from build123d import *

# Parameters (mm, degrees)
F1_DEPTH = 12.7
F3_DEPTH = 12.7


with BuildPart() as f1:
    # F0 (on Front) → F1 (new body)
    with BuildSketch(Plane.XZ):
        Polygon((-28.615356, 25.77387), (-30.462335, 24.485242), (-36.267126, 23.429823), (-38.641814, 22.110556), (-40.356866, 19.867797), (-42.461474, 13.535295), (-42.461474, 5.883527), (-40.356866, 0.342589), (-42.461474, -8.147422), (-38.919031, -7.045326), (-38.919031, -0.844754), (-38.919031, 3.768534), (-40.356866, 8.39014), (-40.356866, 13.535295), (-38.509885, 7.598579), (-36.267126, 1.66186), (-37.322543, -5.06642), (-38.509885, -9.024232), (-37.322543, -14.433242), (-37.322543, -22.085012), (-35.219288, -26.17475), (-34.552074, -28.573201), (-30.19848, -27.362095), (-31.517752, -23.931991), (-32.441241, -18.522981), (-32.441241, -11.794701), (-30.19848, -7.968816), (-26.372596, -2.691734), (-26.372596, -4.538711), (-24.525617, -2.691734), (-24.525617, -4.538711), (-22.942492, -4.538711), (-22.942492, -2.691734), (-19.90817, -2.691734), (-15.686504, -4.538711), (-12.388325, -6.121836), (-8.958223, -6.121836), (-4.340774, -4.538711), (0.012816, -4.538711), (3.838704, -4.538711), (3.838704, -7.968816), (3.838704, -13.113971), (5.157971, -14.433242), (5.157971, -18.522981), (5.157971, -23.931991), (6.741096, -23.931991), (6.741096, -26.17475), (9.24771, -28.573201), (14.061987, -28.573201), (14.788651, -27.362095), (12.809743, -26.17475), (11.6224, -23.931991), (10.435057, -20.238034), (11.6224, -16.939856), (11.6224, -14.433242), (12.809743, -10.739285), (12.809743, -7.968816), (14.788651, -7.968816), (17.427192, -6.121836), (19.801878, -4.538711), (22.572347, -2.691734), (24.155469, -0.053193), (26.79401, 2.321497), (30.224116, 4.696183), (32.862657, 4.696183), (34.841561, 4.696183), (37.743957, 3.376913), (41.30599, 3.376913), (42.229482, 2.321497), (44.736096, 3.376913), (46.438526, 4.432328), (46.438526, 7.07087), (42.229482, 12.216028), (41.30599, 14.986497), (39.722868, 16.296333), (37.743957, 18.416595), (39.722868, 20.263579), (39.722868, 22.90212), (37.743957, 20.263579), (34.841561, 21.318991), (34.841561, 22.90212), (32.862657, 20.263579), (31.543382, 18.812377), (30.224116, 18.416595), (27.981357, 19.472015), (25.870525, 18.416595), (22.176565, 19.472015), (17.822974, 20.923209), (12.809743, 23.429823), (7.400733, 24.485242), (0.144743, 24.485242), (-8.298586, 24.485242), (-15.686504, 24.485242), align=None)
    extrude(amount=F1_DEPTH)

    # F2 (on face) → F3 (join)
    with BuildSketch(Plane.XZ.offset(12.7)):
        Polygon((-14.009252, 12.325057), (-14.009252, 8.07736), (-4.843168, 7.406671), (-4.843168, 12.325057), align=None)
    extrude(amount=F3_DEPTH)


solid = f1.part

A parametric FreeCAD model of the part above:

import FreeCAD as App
import Part
import Sketcher

doc = App.newDocument("Part")
params = doc.addObject("Spreadsheet::Sheet", "Params")
for row, (alias, value) in enumerate([
    ("pad1_length", "0.5 in"),
    ("pad2_length", "0.5 in"),
], start=1):
    params.set(f"A{row}", alias)
    params.set(f"B{row}", "=" + value)
    params.setAlias(f"B{row}", alias)

body = doc.addObject("PartDesign::Body", "Body")

# Sketch on XZ plane
sketch1 = body.newObject("Sketcher::SketchObject", "Sketch")
sketch1.AttachmentSupport = (doc.getObject("XZ_Plane"), [""])
sketch1.MapMode = "FlatFace"
sketch1.addGeometry(Part.LineSegment(App.Vector(-28.615356, 25.77387, 0), App.Vector(-30.462335, 24.485242, 0)), False)
sketch1.addGeometry(Part.LineSegment(App.Vector(-30.462335, 24.485242, 0), App.Vector(-36.267126, 23.429823, 0)), False)
sketch1.addGeometry(Part.LineSegment(App.Vector(-36.267126, 23.429823, 0), App.Vector(-38.641814, 22.110556, 0)), False)
sketch1.addGeometry(Part.LineSegment(App.Vector(-38.641814, 22.110556, 0), App.Vector(-40.356866, 19.867797, 0)), False)
sketch1.addGeometry(Part.LineSegment(App.Vector(-40.356866, 19.867797, 0), App.Vector(-42.461474, 13.535295, 0)), False)
sketch1.addGeometry(Part.LineSegment(App.Vector(-42.461474, 13.535295, 0), App.Vector(-42.461474, 5.883527, 0)), False)
sketch1.addGeometry(Part.LineSegment(App.Vector(-42.461474, 5.883527, 0), App.Vector(-40.356866, 0.342589, 0)), False)
sketch1.addGeometry(Part.LineSegment(App.Vector(-40.356866, 0.342589, 0), App.Vector(-42.461474, -8.147422, 0)), False)
sketch1.addGeometry(Part.LineSegment(App.Vector(-42.461474, -8.147422, 0), App.Vector(-38.919031, -7.045326, 0)), False)
sketch1.addGeometry(Part.LineSegment(App.Vector(-38.919031, -7.045326, 0), App.Vector(-38.919031, 3.768534, 0)), False)
sketch1.addGeometry(Part.LineSegment(App.Vector(-38.919031, 3.768534, 0), App.Vector(-40.356866, 8.39014, 0)), False)
sketch1.addGeometry(Part.LineSegment(App.Vector(-40.356866, 8.39014, 0), App.Vector(-40.356866, 13.535295, 0)), False)
sketch1.addGeometry(Part.LineSegment(App.Vector(-40.356866, 13.535295, 0), App.Vector(-38.509885, 7.598579, 0)), False)
sketch1.addGeometry(Part.LineSegment(App.Vector(-38.509885, 7.598579, 0), App.Vector(-36.267126, 1.66186, 0)), False)
sketch1.addGeometry(Part.LineSegment(App.Vector(-36.267126, 1.66186, 0), App.Vector(-37.322543, -5.06642, 0)), False)
sketch1.addGeometry(Part.LineSegment(App.Vector(-37.322543, -5.06642, 0), App.Vector(-38.509885, -9.024232, 0)), False)
sketch1.addGeometry(Part.LineSegment(App.Vector(-38.509885, -9.024232, 0), App.Vector(-37.322543, -14.433242, 0)), False)
sketch1.addGeometry(Part.LineSegment(App.Vector(-37.322543, -14.433242, 0), App.Vector(-37.322543, -22.085012, 0)), False)
sketch1.addGeometry(Part.LineSegment(App.Vector(-37.322543, -22.085012, 0), App.Vector(-35.219288, -26.17475, 0)), False)
sketch1.addGeometry(Part.LineSegment(App.Vector(-35.219288, -26.17475, 0), App.Vector(-34.552074, -28.573201, 0)), False)
sketch1.addGeometry(Part.LineSegment(App.Vector(-34.552074, -28.573201, 0), App.Vector(-30.19848, -27.362095, 0)), False)
sketch1.addGeometry(Part.LineSegment(App.Vector(-30.19848, -27.362095, 0), App.Vector(-31.517752, -23.931991, 0)), False)
sketch1.addGeometry(Part.LineSegment(App.Vector(-31.517752, -23.931991, 0), App.Vector(-32.441241, -18.522981, 0)), False)
sketch1.addGeometry(Part.LineSegment(App.Vector(-32.441241, -18.522981, 0), App.Vector(-32.441241, -11.794701, 0)), False)
sketch1.addGeometry(Part.LineSegment(App.Vector(-32.441241, -11.794701, 0), App.Vector(-30.19848, -7.968816, 0)), False)
sketch1.addGeometry(Part.LineSegment(App.Vector(-30.19848, -7.968816, 0), App.Vector(-26.372596, -2.691734, 0)), False)
sketch1.addGeometry(Part.LineSegment(App.Vector(-26.372596, -2.691734, 0), App.Vector(-26.372596, -4.538711, 0)), False)
sketch1.addGeometry(Part.LineSegment(App.Vector(-26.372596, -4.538711, 0), App.Vector(-24.525617, -2.691734, 0)), False)
sketch1.addGeometry(Part.LineSegment(App.Vector(-24.525617, -2.691734, 0), App.Vector(-24.525617, -4.538711, 0)), False)
sketch1.addGeometry(Part.LineSegment(App.Vector(-24.525617, -4.538711, 0), App.Vector(-22.942492, -4.538711, 0)), False)
sketch1.addGeometry(Part.LineSegment(App.Vector(-22.942492, -4.538711, 0), App.Vector(-22.942492, -2.691734, 0)), False)
sketch1.addGeometry(Part.LineSegment(App.Vector(-22.942492, -2.691734, 0), App.Vector(-19.90817, -2.691734, 0)), False)
sketch1.addGeometry(Part.LineSegment(App.Vector(-19.90817, -2.691734, 0), App.Vector(-15.686504, -4.538711, 0)), False)
sketch1.addGeometry(Part.LineSegment(App.Vector(-15.686504, -4.538711, 0), App.Vector(-12.388325, -6.121836, 0)), False)
sketch1.addGeometry(Part.LineSegment(App.Vector(-12.388325, -6.121836, 0), App.Vector(-8.958223, -6.121836, 0)), False)
sketch1.addGeometry(Part.LineSegment(App.Vector(-8.958223, -6.121836, 0), App.Vector(-4.340774, -4.538711, 0)), False)
sketch1.addGeometry(Part.LineSegment(App.Vector(-4.340774, -4.538711, 0), App.Vector(3.838704, -4.538711, 0)), False)
sketch1.addGeometry(Part.LineSegment(App.Vector(3.838704, -4.538711, 0), App.Vector(3.838704, -13.113971, 0)), False)
sketch1.addGeometry(Part.LineSegment(App.Vector(3.838704, -13.113971, 0), App.Vector(5.157971, -14.433242, 0)), False)
sketch1.addGeometry(Part.LineSegment(App.Vector(5.157971, -14.433242, 0), App.Vector(5.157971, -23.931991, 0)), False)
sketch1.addGeometry(Part.LineSegment(App.Vector(5.157971, -23.931991, 0), App.Vector(6.741096, -23.931991, 0)), False)
sketch1.addGeometry(Part.LineSegment(App.Vector(6.741096, -23.931991, 0), App.Vector(6.741096, -26.17475, 0)), False)
sketch1.addGeometry(Part.LineSegment(App.Vector(6.741096, -26.17475, 0), App.Vector(9.24771, -28.573201, 0)), False)
sketch1.addGeometry(Part.LineSegment(App.Vector(9.24771, -28.573201, 0), App.Vector(14.061987, -28.573201, 0)), False)
sketch1.addGeometry(Part.LineSegment(App.Vector(14.061987, -28.573201, 0), App.Vector(14.788651, -27.362095, 0)), False)
sketch1.addGeometry(Part.LineSegment(App.Vector(14.788651, -27.362095, 0), App.Vector(12.809743, -26.17475, 0)), False)
sketch1.addGeometry(Part.LineSegment(App.Vector(12.809743, -26.17475, 0), App.Vector(11.6224, -23.931991, 0)), False)
sketch1.addGeometry(Part.LineSegment(App.Vector(11.6224, -23.931991, 0), App.Vector(10.435057, -20.238034, 0)), False)
sketch1.addGeometry(Part.LineSegment(App.Vector(10.435057, -20.238034, 0), App.Vector(11.6224, -16.939856, 0)), False)
sketch1.addGeometry(Part.LineSegment(App.Vector(11.6224, -16.939856, 0), App.Vector(11.6224, -14.433242, 0)), False)
sketch1.addGeometry(Part.LineSegment(App.Vector(11.6224, -14.433242, 0), App.Vector(12.809743, -10.739285, 0)), False)
sketch1.addGeometry(Part.LineSegment(App.Vector(12.809743, -10.739285, 0), App.Vector(12.809743, -7.968816, 0)), False)
sketch1.addGeometry(Part.LineSegment(App.Vector(12.809743, -7.968816, 0), App.Vector(14.788651, -7.968816, 0)), False)
sketch1.addGeometry(Part.LineSegment(App.Vector(14.788651, -7.968816, 0), App.Vector(17.427192, -6.121836, 0)), False)
sketch1.addGeometry(Part.LineSegment(App.Vector(17.427192, -6.121836, 0), App.Vector(19.801878, -4.538711, 0)), False)
sketch1.addGeometry(Part.LineSegment(App.Vector(19.801878, -4.538711, 0), App.Vector(22.572347, -2.691734, 0)), False)
sketch1.addGeometry(Part.LineSegment(App.Vector(22.572347, -2.691734, 0), App.Vector(24.155469, -0.053193, 0)), False)
sketch1.addGeometry(Part.LineSegment(App.Vector(24.155469, -0.053193, 0), App.Vector(26.79401, 2.321497, 0)), False)
sketch1.addGeometry(Part.LineSegment(App.Vector(26.79401, 2.321497, 0), App.Vector(30.224116, 4.696183, 0)), False)
sketch1.addGeometry(Part.LineSegment(App.Vector(30.224116, 4.696183, 0), App.Vector(34.841561, 4.696183, 0)), False)
sketch1.addGeometry(Part.LineSegment(App.Vector(34.841561, 4.696183, 0), App.Vector(37.743957, 3.376913, 0)), False)
sketch1.addGeometry(Part.LineSegment(App.Vector(37.743957, 3.376913, 0), App.Vector(41.30599, 3.376913, 0)), False)
sketch1.addGeometry(Part.LineSegment(App.Vector(41.30599, 3.376913, 0), App.Vector(42.229482, 2.321497, 0)), False)
sketch1.addGeometry(Part.LineSegment(App.Vector(42.229482, 2.321497, 0), App.Vector(44.736096, 3.376913, 0)), False)
sketch1.addGeometry(Part.LineSegment(App.Vector(44.736096, 3.376913, 0), App.Vector(46.438526, 4.432328, 0)), False)
sketch1.addGeometry(Part.LineSegment(App.Vector(46.438526, 4.432328, 0), App.Vector(46.438526, 7.07087, 0)), False)
sketch1.addGeometry(Part.LineSegment(App.Vector(46.438526, 7.07087, 0), App.Vector(42.229482, 12.216028, 0)), False)
sketch1.addGeometry(Part.LineSegment(App.Vector(42.229482, 12.216028, 0), App.Vector(41.30599, 14.986497, 0)), False)
sketch1.addGeometry(Part.LineSegment(App.Vector(41.30599, 14.986497, 0), App.Vector(39.722868, 16.296333, 0)), False)
sketch1.addGeometry(Part.LineSegment(App.Vector(39.722868, 16.296333, 0), App.Vector(37.743957, 18.416595, 0)), False)
sketch1.addGeometry(Part.LineSegment(App.Vector(37.743957, 18.416595, 0), App.Vector(39.722868, 20.263579, 0)), False)
sketch1.addGeometry(Part.LineSegment(App.Vector(39.722868, 20.263579, 0), App.Vector(39.722868, 22.90212, 0)), False)
sketch1.addGeometry(Part.LineSegment(App.Vector(39.722868, 22.90212, 0), App.Vector(37.743957, 20.263579, 0)), False)
sketch1.addGeometry(Part.LineSegment(App.Vector(37.743957, 20.263579, 0), App.Vector(34.841561, 21.318991, 0)), False)
sketch1.addGeometry(Part.LineSegment(App.Vector(34.841561, 21.318991, 0), App.Vector(34.841561, 22.90212, 0)), False)
sketch1.addGeometry(Part.LineSegment(App.Vector(34.841561, 22.90212, 0), App.Vector(32.862657, 20.263579, 0)), False)
sketch1.addGeometry(Part.LineSegment(App.Vector(32.862657, 20.263579, 0), App.Vector(31.543382, 18.812377, 0)), False)
sketch1.addGeometry(Part.LineSegment(App.Vector(31.543382, 18.812377, 0), App.Vector(30.224116, 18.416595, 0)), False)
sketch1.addGeometry(Part.LineSegment(App.Vector(30.224116, 18.416595, 0), App.Vector(27.981357, 19.472015, 0)), False)
sketch1.addGeometry(Part.LineSegment(App.Vector(27.981357, 19.472015, 0), App.Vector(25.870525, 18.416595, 0)), False)
sketch1.addGeometry(Part.LineSegment(App.Vector(25.870525, 18.416595, 0), App.Vector(22.176565, 19.472015, 0)), False)
sketch1.addGeometry(Part.LineSegment(App.Vector(22.176565, 19.472015, 0), App.Vector(17.822974, 20.923209, 0)), False)
sketch1.addGeometry(Part.LineSegment(App.Vector(17.822974, 20.923209, 0), App.Vector(12.809743, 23.429823, 0)), False)
sketch1.addGeometry(Part.LineSegment(App.Vector(12.809743, 23.429823, 0), App.Vector(7.400733, 24.485242, 0)), False)
sketch1.addGeometry(Part.LineSegment(App.Vector(7.400733, 24.485242, 0), App.Vector(-15.686504, 24.485242, 0)), False)
sketch1.addGeometry(Part.LineSegment(App.Vector(-15.686504, 24.485242, 0), App.Vector(-28.615356, 25.77387, 0)), False)
sketch1.addConstraint(Sketcher.Constraint("Coincident", 0, 2, 1, 1))
sketch1.addConstraint(Sketcher.Constraint("Coincident", 1, 2, 2, 1))
sketch1.addConstraint(Sketcher.Constraint("Coincident", 2, 2, 3, 1))
sketch1.addConstraint(Sketcher.Constraint("Coincident", 3, 2, 4, 1))
sketch1.addConstraint(Sketcher.Constraint("Coincident", 4, 2, 5, 1))
sketch1.addConstraint(Sketcher.Constraint("Coincident", 5, 2, 6, 1))
sketch1.addConstraint(Sketcher.Constraint("Coincident", 6, 2, 7, 1))
sketch1.addConstraint(Sketcher.Constraint("Coincident", 7, 2, 8, 1))
sketch1.addConstraint(Sketcher.Constraint("Coincident", 8, 2, 9, 1))
sketch1.addConstraint(Sketcher.Constraint("Coincident", 9, 2, 10, 1))
sketch1.addConstraint(Sketcher.Constraint("Coincident", 10, 2, 11, 1))
sketch1.addConstraint(Sketcher.Constraint("Coincident", 11, 2, 12, 1))
sketch1.addConstraint(Sketcher.Constraint("Coincident", 12, 2, 13, 1))
sketch1.addConstraint(Sketcher.Constraint("Coincident", 13, 2, 14, 1))
sketch1.addConstraint(Sketcher.Constraint("Coincident", 14, 2, 15, 1))
sketch1.addConstraint(Sketcher.Constraint("Coincident", 15, 2, 16, 1))
sketch1.addConstraint(Sketcher.Constraint("Coincident", 16, 2, 17, 1))
sketch1.addConstraint(Sketcher.Constraint("Coincident", 17, 2, 18, 1))
sketch1.addConstraint(Sketcher.Constraint("Coincident", 18, 2, 19, 1))
sketch1.addConstraint(Sketcher.Constraint("Coincident", 19, 2, 20, 1))
sketch1.addConstraint(Sketcher.Constraint("Coincident", 20, 2, 21, 1))
sketch1.addConstraint(Sketcher.Constraint("Coincident", 21, 2, 22, 1))
sketch1.addConstraint(Sketcher.Constraint("Coincident", 22, 2, 23, 1))
sketch1.addConstraint(Sketcher.Constraint("Coincident", 23, 2, 24, 1))
sketch1.addConstraint(Sketcher.Constraint("Coincident", 24, 2, 25, 1))
sketch1.addConstraint(Sketcher.Constraint("Coincident", 25, 2, 26, 1))
sketch1.addConstraint(Sketcher.Constraint("Coincident", 26, 2, 27, 1))
sketch1.addConstraint(Sketcher.Constraint("Coincident", 27, 2, 28, 1))
sketch1.addConstraint(Sketcher.Constraint("Coincident", 28, 2, 29, 1))
sketch1.addConstraint(Sketcher.Constraint("Coincident", 29, 2, 30, 1))
sketch1.addConstraint(Sketcher.Constraint("Coincident", 30, 2, 31, 1))
sketch1.addConstraint(Sketcher.Constraint("Coincident", 31, 2, 32, 1))
sketch1.addConstraint(Sketcher.Constraint("Coincident", 32, 2, 33, 1))
sketch1.addConstraint(Sketcher.Constraint("Coincident", 33, 2, 34, 1))
sketch1.addConstraint(Sketcher.Constraint("Coincident", 34, 2, 35, 1))
sketch1.addConstraint(Sketcher.Constraint("Coincident", 35, 2, 36, 1))
sketch1.addConstraint(Sketcher.Constraint("Coincident", 36, 2, 37, 1))
sketch1.addConstraint(Sketcher.Constraint("Coincident", 37, 2, 38, 1))
sketch1.addConstraint(Sketcher.Constraint("Coincident", 38, 2, 39, 1))
sketch1.addConstraint(Sketcher.Constraint("Coincident", 39, 2, 40, 1))
sketch1.addConstraint(Sketcher.Constraint("Coincident", 40, 2, 41, 1))
sketch1.addConstraint(Sketcher.Constraint("Coincident", 41, 2, 42, 1))
sketch1.addConstraint(Sketcher.Constraint("Coincident", 42, 2, 43, 1))
sketch1.addConstraint(Sketcher.Constraint("Coincident", 43, 2, 44, 1))
sketch1.addConstraint(Sketcher.Constraint("Coincident", 44, 2, 45, 1))
sketch1.addConstraint(Sketcher.Constraint("Coincident", 45, 2, 46, 1))
sketch1.addConstraint(Sketcher.Constraint("Coincident", 46, 2, 47, 1))
sketch1.addConstraint(Sketcher.Constraint("Coincident", 47, 2, 48, 1))
sketch1.addConstraint(Sketcher.Constraint("Coincident", 48, 2, 49, 1))
sketch1.addConstraint(Sketcher.Constraint("Coincident", 49, 2, 50, 1))
sketch1.addConstraint(Sketcher.Constraint("Coincident", 50, 2, 51, 1))
sketch1.addConstraint(Sketcher.Constraint("Coincident", 51, 2, 52, 1))
sketch1.addConstraint(Sketcher.Constraint("Coincident", 52, 2, 53, 1))
sketch1.addConstraint(Sketcher.Constraint("Coincident", 53, 2, 54, 1))
sketch1.addConstraint(Sketcher.Constraint("Coincident", 54, 2, 55, 1))
sketch1.addConstraint(Sketcher.Constraint("Coincident", 55, 2, 56, 1))
sketch1.addConstraint(Sketcher.Constraint("Coincident", 56, 2, 57, 1))
sketch1.addConstraint(Sketcher.Constraint("Coincident", 57, 2, 58, 1))
sketch1.addConstraint(Sketcher.Constraint("Coincident", 58, 2, 59, 1))
sketch1.addConstraint(Sketcher.Constraint("Coincident", 59, 2, 60, 1))
sketch1.addConstraint(Sketcher.Constraint("Coincident", 60, 2, 61, 1))
sketch1.addConstraint(Sketcher.Constraint("Coincident", 61, 2, 62, 1))
sketch1.addConstraint(Sketcher.Constraint("Coincident", 62, 2, 63, 1))
sketch1.addConstraint(Sketcher.Constraint("Coincident", 63, 2, 64, 1))
sketch1.addConstraint(Sketcher.Constraint("Coincident", 64, 2, 65, 1))
sketch1.addConstraint(Sketcher.Constraint("Coincident", 65, 2, 66, 1))
sketch1.addConstraint(Sketcher.Constraint("Coincident", 66, 2, 67, 1))
sketch1.addConstraint(Sketcher.Constraint("Coincident", 67, 2, 68, 1))
sketch1.addConstraint(Sketcher.Constraint("Coincident", 68, 2, 69, 1))
sketch1.addConstraint(Sketcher.Constraint("Coincident", 69, 2, 70, 1))
sketch1.addConstraint(Sketcher.Constraint("Coincident", 70, 2, 71, 1))
sketch1.addConstraint(Sketcher.Constraint("Coincident", 71, 2, 72, 1))
sketch1.addConstraint(Sketcher.Constraint("Coincident", 72, 2, 73, 1))
sketch1.addConstraint(Sketcher.Constraint("Coincident", 73, 2, 74, 1))
sketch1.addConstraint(Sketcher.Constraint("Coincident", 74, 2, 75, 1))
sketch1.addConstraint(Sketcher.Constraint("Coincident", 75, 2, 76, 1))
sketch1.addConstraint(Sketcher.Constraint("Coincident", 76, 2, 77, 1))
sketch1.addConstraint(Sketcher.Constraint("Coincident", 77, 2, 78, 1))
sketch1.addConstraint(Sketcher.Constraint("Coincident", 78, 2, 79, 1))
sketch1.addConstraint(Sketcher.Constraint("Coincident", 79, 2, 80, 1))
sketch1.addConstraint(Sketcher.Constraint("Coincident", 80, 2, 81, 1))
sketch1.addConstraint(Sketcher.Constraint("Coincident", 81, 2, 82, 1))
sketch1.addConstraint(Sketcher.Constraint("Coincident", 82, 2, 83, 1))
sketch1.addConstraint(Sketcher.Constraint("Coincident", 83, 2, 84, 1))
sketch1.addConstraint(Sketcher.Constraint("Coincident", 84, 2, 85, 1))
sketch1.addConstraint(Sketcher.Constraint("Coincident", 85, 2, 0, 1))
sketch1.addConstraint(Sketcher.Constraint("Vertical", 5))
sketch1.addConstraint(Sketcher.Constraint("Vertical", 9))
sketch1.addConstraint(Sketcher.Constraint("Vertical", 11))
sketch1.addConstraint(Sketcher.Constraint("Vertical", 17))
sketch1.addConstraint(Sketcher.Constraint("Vertical", 23))
sketch1.addConstraint(Sketcher.Constraint("Vertical", 26))
sketch1.addConstraint(Sketcher.Constraint("Vertical", 28))
sketch1.addConstraint(Sketcher.Constraint("Horizontal", 29))
sketch1.addConstraint(Sketcher.Constraint("Vertical", 30))
sketch1.addConstraint(Sketcher.Constraint("Horizontal", 31))
sketch1.addConstraint(Sketcher.Constraint("Horizontal", 34))
sketch1.addConstraint(Sketcher.Constraint("Horizontal", 36))
sketch1.addConstraint(Sketcher.Constraint("Vertical", 37))
sketch1.addConstraint(Sketcher.Constraint("Vertical", 39))
sketch1.addConstraint(Sketcher.Constraint("Horizontal", 40))
sketch1.addConstraint(Sketcher.Constraint("Vertical", 41))
sketch1.addConstraint(Sketcher.Constraint("Horizontal", 43))
sketch1.addConstraint(Sketcher.Constraint("Vertical", 49))
sketch1.addConstraint(Sketcher.Constraint("Vertical", 51))
sketch1.addConstraint(Sketcher.Constraint("Horizontal", 52))
sketch1.addConstraint(Sketcher.Constraint("Horizontal", 59))
sketch1.addConstraint(Sketcher.Constraint("Horizontal", 61))
sketch1.addConstraint(Sketcher.Constraint("Vertical", 65))
sketch1.addConstraint(Sketcher.Constraint("Vertical", 71))
sketch1.addConstraint(Sketcher.Constraint("Vertical", 74))
sketch1.addConstraint(Sketcher.Constraint("Horizontal", 84))
sketch1.addConstraint(Sketcher.Constraint("Perpendicular", 8, 10))
sketch1.addConstraint(Sketcher.Constraint("Parallel", 10, 12))
sketch1.addConstraint(Sketcher.Constraint("Perpendicular", 19, 20))
sketch1.addConstraint(Sketcher.Constraint("Perpendicular", 27, 38))
sketch1.addConstraint(Sketcher.Constraint("Perpendicular", 44, 45))
sketch1.addConstraint(Sketcher.Constraint("Parallel", 54, 55))
sketch1.addConstraint(Sketcher.Constraint("Perpendicular", 45, 56))
sketch1.addConstraint(Sketcher.Constraint("Perpendicular", 69, 70))
sketch1.addConstraint(Sketcher.Constraint("Parallel", 72, 75))
sketch1.addConstraint(Sketcher.Constraint("Horizontal", 4, 2, 11, 2))
sketch1.addConstraint(Sketcher.Constraint("Horizontal", 25, 2, 27, 2))
sketch1.addConstraint(Sketcher.Constraint("Horizontal", 26, 2, 28, 2))
sketch1.addConstraint(Sketcher.Constraint("Horizontal", 27, 2, 30, 2))
sketch1.addConstraint(Sketcher.Constraint("Horizontal", 29, 2, 32, 2))
sketch1.addConstraint(Sketcher.Constraint("Horizontal", 32, 2, 35, 2))
sketch1.addConstraint(Sketcher.Constraint("Horizontal", 16, 2, 38, 2))
sketch1.addConstraint(Sketcher.Constraint("Horizontal", 21, 2, 39, 2))
sketch1.addConstraint(Sketcher.Constraint("Horizontal", 18, 2, 41, 2))
sketch1.addConstraint(Sketcher.Constraint("Horizontal", 19, 2, 42, 2))
sketch1.addConstraint(Sketcher.Constraint("Horizontal", 20, 2, 44, 2))
sketch1.addConstraint(Sketcher.Constraint("Horizontal", 41, 2, 45, 2))
sketch1.addConstraint(Sketcher.Constraint("Horizontal", 40, 2, 46, 2))
sketch1.addConstraint(Sketcher.Constraint("Horizontal", 38, 2, 49, 2))
sketch1.addConstraint(Sketcher.Constraint("Horizontal", 24, 2, 51, 2))
sketch1.addConstraint(Sketcher.Constraint("Horizontal", 34, 2, 53, 2))
sketch1.addConstraint(Sketcher.Constraint("Horizontal", 36, 2, 54, 2))
sketch1.addConstraint(Sketcher.Constraint("Horizontal", 31, 2, 55, 2))
sketch1.addConstraint(Sketcher.Constraint("Horizontal", 57, 2, 62, 2))
sketch1.addConstraint(Sketcher.Constraint("Horizontal", 61, 2, 63, 2))
sketch1.addConstraint(Sketcher.Constraint("Horizontal", 70, 2, 72, 2))
sketch1.addConstraint(Sketcher.Constraint("Horizontal", 71, 2, 74, 2))
sketch1.addConstraint(Sketcher.Constraint("Horizontal", 72, 2, 75, 2))
sketch1.addConstraint(Sketcher.Constraint("Horizontal", 69, 2, 77, 2))
sketch1.addConstraint(Sketcher.Constraint("Horizontal", 77, 2, 79, 2))
sketch1.addConstraint(Sketcher.Constraint("Horizontal", 78, 2, 80, 2))
sketch1.addConstraint(Sketcher.Constraint("Horizontal", 1, 2, 82, 2))
sketch1.addConstraint(Sketcher.Constraint("Horizontal", 0, 2, 83, 2))
sketch1.addConstraint(Sketcher.Constraint("Vertical", 3, 2, 6, 2))
sketch1.addConstraint(Sketcher.Constraint("Vertical", 5, 2, 7, 2))
sketch1.addConstraint(Sketcher.Constraint("Vertical", 6, 2, 10, 2))
sketch1.addConstraint(Sketcher.Constraint("Vertical", 1, 2, 13, 2))
sketch1.addConstraint(Sketcher.Constraint("Vertical", 12, 2, 15, 2))
sketch1.addConstraint(Sketcher.Constraint("Vertical", 14, 2, 16, 2))
sketch1.addConstraint(Sketcher.Constraint("Vertical", 20, 2, 24, 2))
sketch1.addConstraint(Sketcher.Constraint("Vertical", 46, 2, 48, 2))
sketch1.addConstraint(Sketcher.Constraint("Vertical", 45, 2, 50, 2))
sketch1.addConstraint(Sketcher.Constraint("Vertical", 44, 2, 52, 2))
sketch1.addConstraint(Sketcher.Constraint("Vertical", 62, 2, 66, 2))
sketch1.addConstraint(Sketcher.Constraint("Vertical", 61, 2, 67, 2))
sketch1.addConstraint(Sketcher.Constraint("Vertical", 60, 2, 69, 2))
sketch1.addConstraint(Sketcher.Constraint("Vertical", 68, 2, 70, 2))
sketch1.addConstraint(Sketcher.Constraint("Vertical", 69, 2, 72, 2))
sketch1.addConstraint(Sketcher.Constraint("Vertical", 59, 2, 73, 2))
sketch1.addConstraint(Sketcher.Constraint("Vertical", 58, 2, 77, 2))
sketch1.addConstraint(Sketcher.Constraint("Vertical", 51, 2, 82, 2))
sketch1.addConstraint(Sketcher.Constraint("Vertical", 32, 2, 84, 2))
sketch1.addConstraint(Sketcher.Constraint("Equal", 29, 40))
sketch1.addConstraint(Sketcher.Constraint("Equal", 5, 17))
sketch1.addConstraint(Sketcher.Constraint("Equal", 65, 71))
sketch1.addConstraint(Sketcher.Constraint("Equal", 47, 50))
sketch1.addConstraint(Sketcher.Constraint("DistanceX", 34, 1, 34, 2, 3.430102))
sketch1.addConstraint(Sketcher.Constraint("Distance", 58, 4.171901))
sketch1.addConstraint(Sketcher.Constraint("DistanceX", 52, 1, 52, 2, 1.978908))
sketch1.addConstraint(Sketcher.Constraint("DistanceY", 9, 1, 9, 2, 10.81386))
sketch1.addConstraint(Sketcher.Constraint("DistanceY", 17, 2, 17, 1, 7.65177))
sketch1.addConstraint(Sketcher.Constraint("DistanceY", 23, 1, 23, 2, 6.72828))
sketch1.addConstraint(Sketcher.Constraint("DistanceY", 37, 2, 37, 1, 8.57526))
sketch1.addConstraint(Sketcher.Constraint("DistanceY", 39, 2, 39, 1, 9.498749))
sketch1.addConstraint(Sketcher.Constraint("DistanceY", 41, 2, 41, 1, 2.242759))
sketch1.addConstraint(Sketcher.Constraint("DistanceY", 51, 1, 51, 2, 2.770469))
sketch1.addConstraint(Sketcher.Constraint("DistanceY", 71, 1, 71, 2, 2.638541))
sketch1.addConstraint(Sketcher.Constraint("DistanceY", 74, 1, 74, 2, 1.583129))
sketch1.addConstraint(Sketcher.Constraint("DistanceY", 19, 2, -1, 1, 28.573201))
sketch1.addConstraint(Sketcher.Constraint("DistanceY", 23, 2, -1, 1, 11.794701))
sketch1.addConstraint(Sketcher.Constraint("DistanceX", -1, 1, 46, 2, 11.6224))
sketch1.addConstraint(Sketcher.Constraint("Distance", 1, 5.899958))
sketch1.addConstraint(Sketcher.Constraint("Distance", 3, 2.823362))
sketch1.addConstraint(Sketcher.Constraint("Distance", 7, 8.74698))
sketch1.addConstraint(Sketcher.Constraint("Distance", 8, 3.709922))
sketch1.addConstraint(Sketcher.Constraint("Distance", 12, 6.21739))
sketch1.addConstraint(Sketcher.Constraint("Distance", 20, 4.518911))
sketch1.addConstraint(Sketcher.Constraint("Distance", 22, 5.487278))
sketch1.addConstraint(Sketcher.Constraint("Distance", 24, 4.434791))
sketch1.addConstraint(Sketcher.Constraint("Distance", 25, 6.518051))
sketch1.addConstraint(Sketcher.Constraint("Distance", 27, 2.612021))
sketch1.addConstraint(Sketcher.Constraint("Distance", 33, 3.658452))
sketch1.addConstraint(Sketcher.Constraint("Distance", 38, 1.865728))
sketch1.addConstraint(Sketcher.Constraint("Distance", 44, 1.41238))
sketch1.addConstraint(Sketcher.Constraint("Distance", 47, 3.88009))
sketch1.addConstraint(Sketcher.Constraint("Distance", 48, 3.50539))
sketch1.addConstraint(Sketcher.Constraint("Distance", 53, 3.22075))
sketch1.addConstraint(Sketcher.Constraint("Distance", 55, 3.329688))
sketch1.addConstraint(Sketcher.Constraint("Distance", 56, 3.07704))
sketch1.addConstraint(Sketcher.Constraint("Distance", 60, 3.188162))
sketch1.addConstraint(Sketcher.Constraint("Distance", 64, 2.00304))
sketch1.addConstraint(Sketcher.Constraint("Distance", 66, 6.647458))
sketch1.addConstraint(Sketcher.Constraint("Distance", 67, 2.920331))
sketch1.addConstraint(Sketcher.Constraint("Distance", 72, 3.298179))
sketch1.addConstraint(Sketcher.Constraint("Distance", 82, 5.604962))
sketch1.addConstraint(Sketcher.Constraint("DistanceX", 29, 1, 29, 2, 1.583125))
sketch1.addConstraint(Sketcher.Constraint("DistanceX", 31, 1, 31, 2, 3.034322))
sketch1.addConstraint(Sketcher.Constraint("DistanceX", 36, 1, 36, 2, 8.179478))
sketch1.addConstraint(Sketcher.Constraint("DistanceX", 43, 1, 43, 2, 4.814277))
sketch1.addConstraint(Sketcher.Constraint("DistanceX", 59, 1, 59, 2, 4.617445))
sketch1.addConstraint(Sketcher.Constraint("DistanceX", 61, 1, 61, 2, 3.562033))
sketch1.addConstraint(Sketcher.Constraint("DistanceX", 84, 2, 84, 1, 23.087237))
sketch1.addConstraint(Sketcher.Constraint("DistanceY", 11, 1, 11, 2, 5.145155))
sketch1.addConstraint(Sketcher.Constraint("DistanceY", 26, 2, 26, 1, 1.846977))
sketch1.addConstraint(Sketcher.Constraint("DistanceY", 49, 1, 49, 2, 2.506614))
sketch1.addConstraint(Sketcher.Constraint("DistanceY", -1, 1, 0, 2, 24.485242))
sketch1.addConstraint(Sketcher.Constraint("DistanceY", -1, 1, 6, 2, 0.342589))
sketch1.addConstraint(Sketcher.Constraint("DistanceX", 8, 2, -1, 1, 38.919031))
sketch1.addConstraint(Sketcher.Constraint("DistanceY", -1, 1, 10, 2, 8.39014))
sketch1.addConstraint(Sketcher.Constraint("DistanceY", -1, 1, 12, 2, 7.598579))
sketch1.addConstraint(Sketcher.Constraint("DistanceY", -1, 1, 13, 2, 1.66186))
sketch1.addConstraint(Sketcher.Constraint("DistanceY", 14, 2, -1, 1, 5.06642))
sketch1.addConstraint(Sketcher.Constraint("DistanceY", 17, 2, -1, 1, 22.085012))
sketch1.addConstraint(Sketcher.Constraint("DistanceX", 20, 2, -1, 1, 30.19848))
sketch1.addConstraint(Sketcher.Constraint("DistanceX", 22, 2, -1, 1, 32.441241))
sketch1.addConstraint(Sketcher.Constraint("DistanceX", -1, 1, 38, 2, 5.157971))
sketch1.addConstraint(Sketcher.Constraint("DistanceX", -1, 1, 56, 2, 24.155469))
sketch1.addConstraint(Sketcher.Constraint("DistanceX", -1, 1, 57, 2, 26.79401))
sketch1.addConstraint(Sketcher.Constraint("DistanceX", -1, 1, 59, 2, 34.841561))
sketch1.addConstraint(Sketcher.Constraint("DistanceX", -1, 1, 61, 2, 41.30599))
sketch1.addConstraint(Sketcher.Constraint("DistanceX", -1, 1, 62, 2, 42.229482))
sketch1.addConstraint(Sketcher.Constraint("DistanceY", -1, 1, 65, 2, 7.07087))
sketch1.addConstraint(Sketcher.Constraint("DistanceY", -1, 1, 70, 2, 20.263579))
sketch1.addConstraint(Sketcher.Constraint("DistanceY", -1, 1, 81, 2, 20.923209))
sketch1.addConstraint(Sketcher.Constraint("DistanceY", -1, 1, 85, 2, 25.77387))
sketch1.addConstraint(Sketcher.Constraint("Distance", 0, 2.252086))
sketch1.addConstraint(Sketcher.Constraint("Distance", 2, 2.716543))
sketch1.addConstraint(Sketcher.Constraint("Distance", 4, 6.673077))
sketch1.addConstraint(Sketcher.Constraint("Distance", 13, 6.346227))
sketch1.addConstraint(Sketcher.Constraint("Distance", 14, 6.810555))
sketch1.addConstraint(Sketcher.Constraint("Distance", 15, 4.132077))
sketch1.addConstraint(Sketcher.Constraint("Distance", 32, 4.608013))
sketch1.addConstraint(Sketcher.Constraint("Distance", 57, 3.549796))
sketch1.addConstraint(Sketcher.Constraint("Distance", 63, 2.719746))
sketch1.addConstraint(Sketcher.Constraint("Distance", 68, 2.054737))
sketch1.addConstraint(Sketcher.Constraint("Distance", 76, 1.961243))
sketch1.addConstraint(Sketcher.Constraint("Distance", 77, 1.377355))
sketch1.addConstraint(Sketcher.Constraint("Distance", 78, 2.478685))
sketch1.addConstraint(Sketcher.Constraint("Distance", 79, 2.359984))
sketch1.addConstraint(Sketcher.Constraint("Distance", 80, 3.841777))
sketch1.addConstraint(Sketcher.Constraint("Distance", 81, 4.589087))
sketch1.addConstraint(Sketcher.Constraint("Distance", 83, 5.511016))
pad1 = body.newObject("PartDesign::Pad", "Pad")
pad1.Profile = sketch1
pad1.setExpression("Length", "Params.pad1_length")

# Sketch on XZ plane
sketch2 = body.newObject("Sketcher::SketchObject", "Sketch001")
sketch2.AttachmentSupport = (doc.getObject("XZ_Plane"), [""])
sketch2.MapMode = "FlatFace"
sketch2.AttachmentOffset = App.Placement(App.Vector(0, 0, 0.5 * 25.4), App.Rotation())
sketch2.addGeometry(Part.LineSegment(App.Vector(-14.009252, 12.325057, 0), App.Vector(-14.009252, 8.07736, 0)), False)
sketch2.addGeometry(Part.LineSegment(App.Vector(-14.009252, 8.07736, 0), App.Vector(-4.843168, 7.406671, 0)), False)
sketch2.addGeometry(Part.LineSegment(App.Vector(-4.843168, 7.406671, 0), App.Vector(-4.843168, 12.325057, 0)), False)
sketch2.addGeometry(Part.LineSegment(App.Vector(-4.843168, 12.325057, 0), App.Vector(-14.009252, 12.325057, 0)), False)
sketch2.addConstraint(Sketcher.Constraint("Coincident", 0, 2, 1, 1))
sketch2.addConstraint(Sketcher.Constraint("Coincident", 1, 2, 2, 1))
sketch2.addConstraint(Sketcher.Constraint("Coincident", 2, 2, 3, 1))
sketch2.addConstraint(Sketcher.Constraint("Coincident", 3, 2, 0, 1))
sketch2.addConstraint(Sketcher.Constraint("Vertical", 0))
sketch2.addConstraint(Sketcher.Constraint("Vertical", 2))
sketch2.addConstraint(Sketcher.Constraint("Horizontal", 3))
sketch2.addConstraint(Sketcher.Constraint("Distance", 1, 9.190589))
sketch2.addConstraint(Sketcher.Constraint("DistanceX", 3, 2, 3, 1, 9.166084))
sketch2.addConstraint(Sketcher.Constraint("DistanceY", 0, 2, 0, 1, 4.247697))
sketch2.addConstraint(Sketcher.Constraint("DistanceY", -1, 1, 0, 2, 8.07736))
sketch2.addConstraint(Sketcher.Constraint("DistanceX", 1, 2, -1, 1, 4.843168))
pad2 = body.newObject("PartDesign::Pad", "Pad001")
pad2.Profile = sketch2
pad2.setExpression("Length", "Params.pad2_length")

doc.recompute()
